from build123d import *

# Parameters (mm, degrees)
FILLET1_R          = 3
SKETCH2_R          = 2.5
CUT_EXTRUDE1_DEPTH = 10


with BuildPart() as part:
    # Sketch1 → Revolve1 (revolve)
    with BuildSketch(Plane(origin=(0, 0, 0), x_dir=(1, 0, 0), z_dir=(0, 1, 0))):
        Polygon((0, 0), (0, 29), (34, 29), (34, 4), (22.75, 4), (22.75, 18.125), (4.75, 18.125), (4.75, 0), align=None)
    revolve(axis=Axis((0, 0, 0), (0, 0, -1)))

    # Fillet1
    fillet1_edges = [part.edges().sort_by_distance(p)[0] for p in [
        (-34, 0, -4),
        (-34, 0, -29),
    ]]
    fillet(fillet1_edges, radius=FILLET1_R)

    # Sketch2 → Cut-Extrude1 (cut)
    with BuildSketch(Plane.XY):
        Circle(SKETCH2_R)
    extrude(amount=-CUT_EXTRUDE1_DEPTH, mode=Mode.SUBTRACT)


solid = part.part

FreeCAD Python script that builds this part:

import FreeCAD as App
import Part
import Sketcher

V = App.Vector
Q = App.Units.Quantity


def edges_at(feature, points):
    """Names of the edges that pass closest to the given points."""
    edges = feature.Shape.Edges
    near = lambda p: min(range(len(edges)), key=lambda i: edges[i].distToShape(Part.Vertex(*p))[0])
    return sorted({f"Edge{near(p) + 1}" for p in points})

doc = App.newDocument("Part")
params = doc.addObject("Spreadsheet::Sheet", "Params")
for row, (alias, value) in enumerate([
    ("sketch1_width", "18 mm"),
    ("sketch1_width2", "34 mm"),
    ("sketch1_height", "29 mm"),
    ("sketch1_height2", "25 mm"),
    ("sketch1_width3", "4.75 mm"),
    ("revolution_angle", "360 deg"),
    ("fillet_radius", "3 mm"),
    ("sketch2_diameter", "5 mm"),
    ("pocket1_length", "10 mm"),
], start=1):
    params.set(f"A{row}", alias)
    params.set(f"B{row}", "=" + value)
    params.setAlias(f"B{row}", alias)

body = doc.addObject("PartDesign::Body", "Body")

sketch1 = doc.addObject("Sketcher::SketchObject", "Sketch")
body.addObject(sketch1)
sketch1.AttachmentSupport = (doc.XZ_Plane, [""])
sketch1.MapMode = "FlatFace"
sketch1.addGeometry([
    Part.LineSegment(V(0, -29, 0), V(0, 0, 0)),
    Part.LineSegment(V(0, 0, 0), V(4.8, 0, 0)),
    Part.LineSegment(V(4.8, 0, 0), V(4.8, -18.1, 0)),
    Part.LineSegment(V(4.8, -18.1, 0), V(22.8, -18.1, 0)),
    Part.LineSegment(V(22.8, -18.1, 0), V(22.8, -4, 0)),
    Part.LineSegment(V(22.8, -4, 0), V(34, -4, 0)),
    Part.LineSegment(V(34, -4, 0), V(34, -29, 0)),
    Part.LineSegment(V(34, -29, 0), V(0, -29, 0)),
], False)
sketch1.addConstraint([
    Sketcher.Constraint("Coincident", 0, 2, 1, 1),
    Sketcher.Constraint("Coincident", 1, 2, 2, 1),
    Sketcher.Constraint("Coincident", 2, 2, 3, 1),
    Sketcher.Constraint("Coincident", 3, 2, 4, 1),
    Sketcher.Constraint("Coincident", 4, 2, 5, 1),
    Sketcher.Constraint("Coincident", 5, 2, 6, 1),
    Sketcher.Constraint("Coincident", 6, 2, 7, 1),
    Sketcher.Constraint("Coincident", 7, 2, 0, 1),
    Sketcher.Constraint("Vertical", 0),
    Sketcher.Constraint("Horizontal", 1),
    Sketcher.Constraint("Vertical", 2),
    Sketcher.Constraint("Horizontal", 3),
    Sketcher.Constraint("Vertical", 4),
    Sketcher.Constraint("Horizontal", 5),
    Sketcher.Constraint("Vertical", 6),
    Sketcher.Constraint("Horizontal", 7),
    Sketcher.Constraint("Coincident", 0, 2, -1, 1),
    Sketcher.Constraint("DistanceX", 3, 1, 3, 2, Q("18 mm")),
    Sketcher.Constraint("DistanceX", 7, 2, 7, 1, Q("34 mm")),
    Sketcher.Constraint("DistanceY", 0, 1, 0, 2, Q("29 mm")),
    Sketcher.Constraint("DistanceY", 6, 2, 6, 1, Q("25 mm")),
    Sketcher.Constraint("DistanceX", 1, 1, 1, 2, Q("4.75 mm")),
    Sketcher.Constraint("DistanceY", 2, 2, 2, 1, Q("18.125 mm")),
])
sketch1.setExpression("Constraints[17]", "Params.sketch1_width")
sketch1.setExpression("Constraints[18]", "Params.sketch1_width2")
sketch1.setExpression("Constraints[19]", "Params.sketch1_height")
sketch1.setExpression("Constraints[20]", "Params.sketch1_height2")
sketch1.setExpression("Constraints[21]", "Params.sketch1_width3")
revolution = doc.addObject("PartDesign::Revolution", "Revolution")
body.addObject(revolution)
revolution.Profile = sketch1
revolution.ReferenceAxis = (sketch1, ["V_Axis"])
revolution.setExpression("Angle", "Params.revolution_angle")
doc.recompute()

fillet = doc.addObject("PartDesign::Fillet", "Fillet")
body.addObject(fillet)
fillet.Base = (revolution, edges_at(revolution, [(-34, 0, -4), (-34, 0, -29)]))
fillet.setExpression("Radius", "Params.fillet_radius")

sketch2 = doc.addObject("Sketcher::SketchObject", "Sketch001")
body.addObject(sketch2)
sketch2.AttachmentSupport = (doc.XY_Plane, [""])
sketch2.MapMode = "FlatFace"
sketch2.addGeometry(Part.Circle(V(0, 0, 0), V(0, 0, 1), 2.5), False)
sketch2.addConstraint([
    Sketcher.Constraint("Coincident", 0, 3, -1, 1),
    Sketcher.Constraint("Diameter", 0, Q("5 mm")),
])
sketch2.setExpression("Constraints[1]", "Params.sketch2_diameter")
pocket1 = doc.addObject("PartDesign::Pocket", "Pocket")
body.addObject(pocket1)
pocket1.Profile = sketch2
pocket1.setExpression("Length", "Params.pocket1_length")

doc.recompute()
